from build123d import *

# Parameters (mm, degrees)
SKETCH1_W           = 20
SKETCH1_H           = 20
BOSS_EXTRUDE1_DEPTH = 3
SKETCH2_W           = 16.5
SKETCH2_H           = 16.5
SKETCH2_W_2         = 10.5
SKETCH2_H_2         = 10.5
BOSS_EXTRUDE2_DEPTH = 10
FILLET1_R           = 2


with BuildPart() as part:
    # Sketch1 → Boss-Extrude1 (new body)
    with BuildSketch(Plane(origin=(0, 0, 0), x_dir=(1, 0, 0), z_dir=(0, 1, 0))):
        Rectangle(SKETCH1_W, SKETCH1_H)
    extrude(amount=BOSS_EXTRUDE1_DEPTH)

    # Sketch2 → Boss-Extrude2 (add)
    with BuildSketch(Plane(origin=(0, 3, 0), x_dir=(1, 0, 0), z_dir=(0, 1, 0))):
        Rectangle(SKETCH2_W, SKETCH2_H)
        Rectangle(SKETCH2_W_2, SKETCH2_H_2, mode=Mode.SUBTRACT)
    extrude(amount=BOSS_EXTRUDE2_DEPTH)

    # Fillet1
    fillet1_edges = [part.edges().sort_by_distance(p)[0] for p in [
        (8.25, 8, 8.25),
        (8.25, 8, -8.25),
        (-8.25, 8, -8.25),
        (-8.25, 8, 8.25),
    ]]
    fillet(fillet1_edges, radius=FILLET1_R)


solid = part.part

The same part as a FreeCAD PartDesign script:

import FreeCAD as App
import Part
import Sketcher
Q = App.Units.Quantity


def edges_at(feature, points):
    """Names of the edges that pass closest to the given points."""
    edges = feature.Shape.Edges
    near = lambda p: min(range(len(edges)), key=lambda i: edges[i].distToShape(Part.Vertex(*p))[0])
    return sorted({f"Edge{near(p) + 1}" for p in points})

doc = App.newDocument("Part")
body = doc.addObject("PartDesign::Body", "Body")

# Sketch on XZ plane
sketch1 = body.newObject("Sketcher::SketchObject", "Sketch")
sketch1.AttachmentSupport = (doc.getObject("XZ_Plane"), [""])
sketch1.MapMode = "FlatFace"
sketch1.addGeometry([
    Part.LineSegment(App.Vector(-10, -10, 0), App.Vector(-10, 10, 0)),
    Part.LineSegment(App.Vector(-10, 10, 0), App.Vector(10, 10, 0)),
    Part.LineSegment(App.Vector(10, 10, 0), App.Vector(10, -10, 0)),
    Part.LineSegment(App.Vector(10, -10, 0), App.Vector(-10, -10, 0)),
], False)
sketch1.addConstraint([
    Sketcher.Constraint("Coincident", 0, 2, 1, 1),
    Sketcher.Constraint("Coincident", 1, 2, 2, 1),
    Sketcher.Constraint("Coincident", 2, 2, 3, 1),
    Sketcher.Constraint("Coincident", 3, 2, 0, 1),
    Sketcher.Constraint("Vertical", 0),
    Sketcher.Constraint("Horizontal", 1),
    Sketcher.Constraint("Vertical", 2),
    Sketcher.Constraint("Horizontal", 3),
    Sketcher.Constraint("Symmetric", 0, 2, 2, 2, -1, 1),
    Sketcher.Constraint("Equal", 3, 0),
    Sketcher.Constraint("DistanceX", 1, 1, 1, 2, Q("20 mm")),
])
pad1 = body.newObject("PartDesign::Pad", "Pad")
pad1.Profile = sketch1
pad1.Length = 3
pad1.Reversed = True

# Sketch on XZ plane
sketch2 = body.newObject("Sketcher::SketchObject", "Sketch001")
sketch2.AttachmentSupport = (doc.getObject("XZ_Plane"), [""])
sketch2.MapMode = "FlatFace"
sketch2.AttachmentOffset = App.Placement(App.Vector(0, 0, -3), App.Rotation())
sketch2.addGeometry([
    Part.LineSegment(App.Vector(-8.25, -8.25, 0), App.Vector(-8.25, 8.25, 0)),  # 0
    Part.LineSegment(App.Vector(-8.25, 8.25, 0), App.Vector(8.25, 8.25, 0)),  # 1
    Part.LineSegment(App.Vector(8.25, 8.25, 0), App.Vector(8.25, -8.25, 0)),  # 2
    Part.LineSegment(App.Vector(8.25, -8.25, 0), App.Vector(-8.25, -8.25, 0)),  # 3
    Part.LineSegment(App.Vector(5.25, 5.25, 0), App.Vector(-5.25, 5.25, 0)),  # 4
    Part.LineSegment(App.Vector(-5.25, 5.25, 0), App.Vector(-5.25, -5.25, 0)),  # 5
    Part.LineSegment(App.Vector(-5.25, -5.25, 0), App.Vector(5.25, -5.25, 0)),  # 6
    Part.LineSegment(App.Vector(5.25, -5.25, 0), App.Vector(5.25, 5.25, 0)),  # 7
], False)
sketch2.addConstraint([
    Sketcher.Constraint("Coincident", 0, 2, 1, 1),
    Sketcher.Constraint("Coincident", 1, 2, 2, 1),
    Sketcher.Constraint("Coincident", 2, 2, 3, 1),
    Sketcher.Constraint("Coincident", 3, 2, 0, 1),
    Sketcher.Constraint("Coincident", 4, 2, 5, 1),
    Sketcher.Constraint("Coincident", 5, 2, 6, 1),
    Sketcher.Constraint("Coincident", 6, 2, 7, 1),
    Sketcher.Constraint("Coincident", 7, 2, 4, 1),
    Sketcher.Constraint("Vertical", 0),
    Sketcher.Constraint("Horizontal", 1),
    Sketcher.Constraint("Vertical", 2),
    Sketcher.Constraint("Horizontal", 3),
    Sketcher.Constraint("Horizontal", 4),
    Sketcher.Constraint("Vertical", 5),
    Sketcher.Constraint("Horizontal", 6),
    Sketcher.Constraint("Vertical", 7),
    Sketcher.Constraint("Symmetric", 0, 2, 2, 2, -1, 1),
    Sketcher.Constraint("Symmetric", 4, 2, 6, 2, -1, 1),
    Sketcher.Constraint("Equal", 3, 0),
    Sketcher.Constraint("Equal", 6, 5),
    Sketcher.Constraint("DistanceX", 1, 1, 1, 2, Q("16.5 mm")),
    Sketcher.Constraint("DistanceX", 4, 2, 4, 1, Q("10.5 mm")),
])
pad2 = body.newObject("PartDesign::Pad", "Pad001")
pad2.Profile = sketch2
pad2.Length = 10
pad2.Reversed = True
doc.recompute()

fillet = body.newObject("PartDesign::Fillet", "Fillet")
fillet.Base = (pad2, edges_at(pad2, [
    (8.25, 8, 8.25),
    (8.25, 8, -8.25),
    (-8.25, 8, -8.25),
    (-8.25, 8, 8.25),
]))
fillet.Radius = 2

doc.recompute()
